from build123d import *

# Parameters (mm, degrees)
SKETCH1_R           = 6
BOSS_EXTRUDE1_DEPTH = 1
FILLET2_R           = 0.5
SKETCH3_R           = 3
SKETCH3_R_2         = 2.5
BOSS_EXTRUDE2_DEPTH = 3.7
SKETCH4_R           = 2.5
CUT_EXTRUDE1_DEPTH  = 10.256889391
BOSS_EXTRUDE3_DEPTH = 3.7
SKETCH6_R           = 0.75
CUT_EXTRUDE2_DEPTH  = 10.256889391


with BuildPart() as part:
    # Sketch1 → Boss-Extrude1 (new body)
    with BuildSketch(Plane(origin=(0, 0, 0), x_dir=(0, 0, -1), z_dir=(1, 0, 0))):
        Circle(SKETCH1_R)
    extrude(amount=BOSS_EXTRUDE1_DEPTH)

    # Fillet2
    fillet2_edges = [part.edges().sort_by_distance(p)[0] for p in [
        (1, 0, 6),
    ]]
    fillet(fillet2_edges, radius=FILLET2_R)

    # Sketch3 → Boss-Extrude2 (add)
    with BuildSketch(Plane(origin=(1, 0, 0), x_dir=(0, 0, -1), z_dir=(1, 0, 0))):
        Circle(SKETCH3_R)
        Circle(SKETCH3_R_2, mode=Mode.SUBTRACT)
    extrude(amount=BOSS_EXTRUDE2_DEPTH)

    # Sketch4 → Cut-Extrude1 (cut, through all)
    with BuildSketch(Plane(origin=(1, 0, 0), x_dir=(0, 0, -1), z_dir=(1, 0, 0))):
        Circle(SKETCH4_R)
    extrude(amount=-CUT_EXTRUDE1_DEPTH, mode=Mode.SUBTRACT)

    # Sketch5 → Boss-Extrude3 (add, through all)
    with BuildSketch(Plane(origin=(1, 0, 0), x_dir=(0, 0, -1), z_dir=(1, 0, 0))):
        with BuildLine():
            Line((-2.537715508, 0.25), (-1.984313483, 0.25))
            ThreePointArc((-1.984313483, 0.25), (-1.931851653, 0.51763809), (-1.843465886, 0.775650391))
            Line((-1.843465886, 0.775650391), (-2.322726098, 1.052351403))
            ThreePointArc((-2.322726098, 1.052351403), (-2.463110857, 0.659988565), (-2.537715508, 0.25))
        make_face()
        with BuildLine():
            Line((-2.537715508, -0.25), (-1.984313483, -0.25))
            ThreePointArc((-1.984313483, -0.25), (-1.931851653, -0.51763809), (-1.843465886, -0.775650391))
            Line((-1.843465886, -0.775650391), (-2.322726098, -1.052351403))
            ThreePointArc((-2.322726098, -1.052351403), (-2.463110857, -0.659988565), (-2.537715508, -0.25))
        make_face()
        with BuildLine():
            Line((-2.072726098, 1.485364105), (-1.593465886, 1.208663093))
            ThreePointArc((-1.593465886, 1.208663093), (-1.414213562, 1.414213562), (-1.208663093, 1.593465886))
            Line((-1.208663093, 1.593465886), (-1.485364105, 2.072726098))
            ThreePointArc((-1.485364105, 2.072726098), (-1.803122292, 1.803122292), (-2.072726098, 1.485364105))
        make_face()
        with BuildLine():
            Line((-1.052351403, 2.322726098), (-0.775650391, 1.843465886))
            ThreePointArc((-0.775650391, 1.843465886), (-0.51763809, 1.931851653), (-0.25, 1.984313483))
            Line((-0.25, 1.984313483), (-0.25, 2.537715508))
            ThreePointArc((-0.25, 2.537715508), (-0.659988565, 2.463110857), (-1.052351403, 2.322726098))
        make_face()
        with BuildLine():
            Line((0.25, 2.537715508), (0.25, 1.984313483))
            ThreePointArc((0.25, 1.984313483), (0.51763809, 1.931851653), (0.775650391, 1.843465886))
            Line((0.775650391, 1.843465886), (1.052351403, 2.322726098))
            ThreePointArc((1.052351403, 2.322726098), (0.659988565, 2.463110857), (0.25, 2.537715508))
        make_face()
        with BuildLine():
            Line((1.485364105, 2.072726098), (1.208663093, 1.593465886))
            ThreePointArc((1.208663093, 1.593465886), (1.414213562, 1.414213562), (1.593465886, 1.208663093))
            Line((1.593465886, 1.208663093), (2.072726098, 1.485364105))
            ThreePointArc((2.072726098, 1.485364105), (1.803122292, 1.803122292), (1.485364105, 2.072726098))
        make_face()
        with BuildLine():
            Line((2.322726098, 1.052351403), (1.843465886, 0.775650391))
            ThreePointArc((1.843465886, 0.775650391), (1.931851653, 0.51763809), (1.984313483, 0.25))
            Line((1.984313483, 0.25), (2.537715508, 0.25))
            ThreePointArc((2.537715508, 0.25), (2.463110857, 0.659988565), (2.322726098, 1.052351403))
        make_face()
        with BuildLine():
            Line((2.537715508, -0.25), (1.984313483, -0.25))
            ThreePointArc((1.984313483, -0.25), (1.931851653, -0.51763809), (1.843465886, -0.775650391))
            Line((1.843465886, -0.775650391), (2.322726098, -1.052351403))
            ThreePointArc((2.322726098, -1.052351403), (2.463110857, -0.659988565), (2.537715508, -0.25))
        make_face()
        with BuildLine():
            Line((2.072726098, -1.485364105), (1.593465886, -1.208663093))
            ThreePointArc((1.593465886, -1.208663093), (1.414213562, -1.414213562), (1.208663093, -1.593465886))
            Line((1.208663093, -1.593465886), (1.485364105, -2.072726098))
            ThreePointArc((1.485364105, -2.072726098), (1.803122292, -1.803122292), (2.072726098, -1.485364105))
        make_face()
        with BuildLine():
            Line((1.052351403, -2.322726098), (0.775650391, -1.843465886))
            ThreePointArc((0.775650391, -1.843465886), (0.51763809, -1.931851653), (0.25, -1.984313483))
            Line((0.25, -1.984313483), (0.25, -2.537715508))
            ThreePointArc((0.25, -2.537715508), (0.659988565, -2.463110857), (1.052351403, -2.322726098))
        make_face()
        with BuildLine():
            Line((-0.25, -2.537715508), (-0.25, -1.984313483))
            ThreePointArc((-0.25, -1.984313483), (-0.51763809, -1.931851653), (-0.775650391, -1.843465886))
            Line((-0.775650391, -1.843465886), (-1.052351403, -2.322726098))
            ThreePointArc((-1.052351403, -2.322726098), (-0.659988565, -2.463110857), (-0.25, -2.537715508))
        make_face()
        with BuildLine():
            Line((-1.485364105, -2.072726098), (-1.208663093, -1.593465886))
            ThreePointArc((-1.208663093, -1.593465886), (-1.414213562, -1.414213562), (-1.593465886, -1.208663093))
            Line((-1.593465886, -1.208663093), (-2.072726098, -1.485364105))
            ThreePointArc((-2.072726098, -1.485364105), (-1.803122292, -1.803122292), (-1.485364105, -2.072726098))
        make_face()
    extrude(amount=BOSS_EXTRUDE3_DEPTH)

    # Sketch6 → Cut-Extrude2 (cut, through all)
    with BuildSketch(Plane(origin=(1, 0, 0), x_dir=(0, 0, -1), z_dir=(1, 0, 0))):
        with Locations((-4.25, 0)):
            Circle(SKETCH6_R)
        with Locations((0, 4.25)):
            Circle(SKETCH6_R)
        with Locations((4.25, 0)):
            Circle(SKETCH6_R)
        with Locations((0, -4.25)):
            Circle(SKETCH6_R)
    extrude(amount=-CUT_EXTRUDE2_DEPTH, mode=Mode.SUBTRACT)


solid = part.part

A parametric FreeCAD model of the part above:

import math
import FreeCAD as App
import Part
import Sketcher

V = App.Vector
Q = App.Units.Quantity


def edges_at(feature, points):
    """Names of the edges that pass closest to the given points."""
    edges = feature.Shape.Edges
    near = lambda p: min(range(len(edges)), key=lambda i: edges[i].distToShape(Part.Vertex(*p))[0])
    return sorted({f"Edge{near(p) + 1}" for p in points})

doc = App.newDocument("Part")
params = doc.addObject("Spreadsheet::Sheet", "Params")
for row, (alias, value) in enumerate([
    ("sketch1_diameter", "12 mm"),
    ("pad1_length", "1 mm"),
    ("fillet_radius", "0.5 mm"),
    ("sketch2_diameter", "6 mm"),
    ("sketch2_diameter2", "5 mm"),
    ("pad2_length", "3.7 mm"),
    ("sketch3_diameter", "5 mm"),
    ("sketch4_radius", "2 mm"),
    ("sketch4_radius2", "2.55 mm"),
    ("pad3_length", "3.7 mm"),
    ("sketch5_diameter", "1.5 mm"),
], start=1):
    params.set(f"A{row}", alias)
    params.set(f"B{row}", "=" + value)
    params.setAlias(f"B{row}", alias)

body = doc.addObject("PartDesign::Body", "Body")

sketch1 = body.newObject("Sketcher::SketchObject", "Sketch")
sketch1.AttachmentSupport = (doc.getObject("YZ_Plane"), [""])
sketch1.MapMode = "FlatFace"
sketch1.addGeometry(Part.Circle(V(0, 0, 0), V(0, 0, 1), 6), False)
sketch1.addConstraint(Sketcher.Constraint("Coincident", 0, 3, -1, 1))
sketch1.addConstraint(Sketcher.Constraint("Diameter", 0, Q("12 mm")))
sketch1.setExpression("Constraints[1]", "Params.sketch1_diameter")
pad1 = body.newObject("PartDesign::Pad", "Pad")
pad1.Profile = sketch1
pad1.setExpression("Length", "Params.pad1_length")
doc.recompute()

fillet = body.newObject("PartDesign::Fillet", "Fillet")
fillet.Base = (pad1, edges_at(pad1, [(1, 0, 6)]))
fillet.setExpression("Radius", "Params.fillet_radius")

sketch2 = body.newObject("Sketcher::SketchObject", "Sketch001")
sketch2.AttachmentSupport = (doc.getObject("YZ_Plane"), [""])
sketch2.MapMode = "FlatFace"
sketch2.AttachmentOffset = App.Placement(V(0, 0, 1), App.Rotation())
sketch2.addGeometry(Part.Circle(V(0, 0, 0), V(0, 0, 1), 3), False)
sketch2.addGeometry(Part.Circle(V(0, 0, 0), V(0, 0, 1), 2.5), False)
sketch2.addConstraint(Sketcher.Constraint("Coincident", 0, 3, -1, 1))
sketch2.addConstraint(Sketcher.Constraint("Coincident", 1, 3, -1, 1))
sketch2.addConstraint(Sketcher.Constraint("Diameter", 0, Q("6 mm")))
sketch2.addConstraint(Sketcher.Constraint("Diameter", 1, Q("5 mm")))
sketch2.setExpression("Constraints[2]", "Params.sketch2_diameter")
sketch2.setExpression("Constraints[3]", "Params.sketch2_diameter2")
pad2 = body.newObject("PartDesign::Pad", "Pad001")
pad2.Profile = sketch2
pad2.setExpression("Length", "Params.pad2_length")

sketch3 = body.newObject("Sketcher::SketchObject", "Sketch002")
sketch3.AttachmentSupport = (doc.getObject("YZ_Plane"), [""])
sketch3.MapMode = "FlatFace"
sketch3.AttachmentOffset = App.Placement(V(0, 0, 1), App.Rotation())
sketch3.addGeometry(Part.Circle(V(0, 0, 0), V(0, 0, 1), 2.5), False)
sketch3.addConstraint(Sketcher.Constraint("Coincident", 0, 3, -1, 1))
sketch3.addConstraint(Sketcher.Constraint("Diameter", 0, Q("5 mm")))
sketch3.setExpression("Constraints[1]", "Params.sketch3_diameter")
pocket1 = body.newObject("PartDesign::Pocket", "Pocket")
pocket1.Profile = sketch3
pocket1.Type = "ThroughAll"

sketch4 = body.newObject("Sketcher::SketchObject", "Sketch003")
sketch4.AttachmentSupport = (doc.getObject("YZ_Plane"), [""])
sketch4.MapMode = "FlatFace"
sketch4.AttachmentOffset = App.Placement(V(0, 0, 1), App.Rotation())
sketch4.addGeometry(Part.LineSegment(V(0.25, 2.537716, 0), V(0.25, 1.984313, 0)), False)
sketch4.addGeometry(Part.ArcOfCircle(Part.Circle(V(0, 0, 0), V(0, 0, 1), 2), math.radians(67.180756), math.radians(82.819244)), False)
sketch4.addGeometry(Part.LineSegment(V(0.77565, 1.843466, 0), V(1.052351, 2.322726, 0)), False)
sketch4.addGeometry(Part.ArcOfCircle(Part.Circle(V(0, 0, 0), V(0, 0, 1), 2.55), math.radians(65.626271), math.radians(84.373729)), False)
sketch4.addGeometry(Part.LineSegment(V(-0.25, 1.984313, 0), V(-0.25, 2.537716, 0)), False)
sketch4.addGeometry(Part.ArcOfCircle(Part.Circle(V(0, 0, 0), V(0, 0, 1), 2.55), math.radians(95.626271), math.radians(114.373729)), False)
sketch4.addGeometry(Part.LineSegment(V(-1.052351, 2.322726, 0), V(-0.77565, 1.843466, 0)), False)
sketch4.addGeometry(Part.ArcOfCircle(Part.Circle(V(0, 0, 0), V(0, 0, 1), 2), math.radians(97.180756), math.radians(112.819244)), False)
sketch4.addGeometry(Part.LineSegment(V(1.485364, 2.072726, 0), V(1.208663, 1.593466, 0)), False)
sketch4.addGeometry(Part.ArcOfCircle(Part.Circle(V(0, 0, 0), V(0, 0, 1), 2), math.radians(37.180756), math.radians(52.819244)), False)
sketch4.addGeometry(Part.LineSegment(V(1.593466, 1.208663, 0), V(2.072726, 1.485364, 0)), False)
sketch4.addGeometry(Part.ArcOfCircle(Part.Circle(V(0, 0, 0), V(0, 0, 1), 2.55), math.radians(35.626271), math.radians(54.373729)), False)
sketch4.addGeometry(Part.LineSegment(V(2.322726, 1.052351, 0), V(1.843466, 0.77565, 0)), False)
sketch4.addGeometry(Part.ArcOfCircle(Part.Circle(V(0, 0, 0), V(0, 0, 1), 2), math.radians(7.180756), math.radians(22.819244)), False)
sketch4.addGeometry(Part.LineSegment(V(1.984313, 0.25, 0), V(2.537716, 0.25, 0)), False)
sketch4.addGeometry(Part.ArcOfCircle(Part.Circle(V(0, 0, 0), V(0, 0, 1), 2.55), math.radians(5.626271), math.radians(24.373729)), False)
sketch4.addGeometry(Part.LineSegment(V(2.537716, -0.25, 0), V(1.984313, -0.25, 0)), False)
sketch4.addGeometry(Part.ArcOfCircle(Part.Circle(V(0, 0, 0), V(0, 0, 1), 2), math.radians(-22.819244), math.radians(-7.180756)), False)
sketch4.addGeometry(Part.LineSegment(V(1.843466, -0.77565, 0), V(2.322726, -1.052351, 0)), False)
sketch4.addGeometry(Part.ArcOfCircle(Part.Circle(V(0, 0, 0), V(0, 0, 1), 2.55), math.radians(-24.373729), math.radians(-5.626271)), False)
sketch4.addGeometry(Part.LineSegment(V(2.072726, -1.485364, 0), V(1.593466, -1.208663, 0)), False)
sketch4.addGeometry(Part.ArcOfCircle(Part.Circle(V(0, 0, 0), V(0, 0, 1), 2), math.radians(-52.819244), math.radians(-37.180756)), False)
sketch4.addGeometry(Part.LineSegment(V(1.208663, -1.593466, 0), V(1.485364, -2.072726, 0)), False)
sketch4.addGeometry(Part.ArcOfCircle(Part.Circle(V(0, 0, 0), V(0, 0, 1), 2.55), math.radians(-54.373729), math.radians(-35.626271)), False)
sketch4.addGeometry(Part.LineSegment(V(1.052351, -2.322726, 0), V(0.77565, -1.843466, 0)), False)
sketch4.addGeometry(Part.ArcOfCircle(Part.Circle(V(0, 0, 0), V(0, 0, 1), 2), math.radians(-82.819244), math.radians(-67.180756)), False)
sketch4.addGeometry(Part.LineSegment(V(0.25, -1.984313, 0), V(0.25, -2.537716, 0)), False)
sketch4.addGeometry(Part.ArcOfCircle(Part.Circle(V(0, 0, 0), V(0, 0, 1), 2.55), math.radians(-84.373729), math.radians(-65.626271)), False)
sketch4.addGeometry(Part.LineSegment(V(-0.25, -2.537716, 0), V(-0.25, -1.984313, 0)), False)
sketch4.addGeometry(Part.ArcOfCircle(Part.Circle(V(0, 0, 0), V(0, 0, 1), 2), math.radians(-112.819244), math.radians(-97.180756)), False)
sketch4.addGeometry(Part.LineSegment(V(-0.77565, -1.843466, 0), V(-1.052351, -2.322726, 0)), False)
sketch4.addGeometry(Part.ArcOfCircle(Part.Circle(V(0, 0, 0), V(0, 0, 1), 2.55), math.radians(-114.373729), math.radians(-95.626271)), False)
sketch4.addGeometry(Part.LineSegment(V(-1.485364, -2.072726, 0), V(-1.208663, -1.593466, 0)), False)
sketch4.addGeometry(Part.ArcOfCircle(Part.Circle(V(0, 0, 0), V(0, 0, 1), 2), math.radians(-142.819244), math.radians(-127.180756)), False)
sketch4.addGeometry(Part.LineSegment(V(-1.593466, -1.208663, 0), V(-2.072726, -1.485364, 0)), False)
sketch4.addGeometry(Part.ArcOfCircle(Part.Circle(V(0, 0, 0), V(0, 0, 1), 2.55), math.radians(-144.373729), math.radians(-125.626271)), False)
sketch4.addGeometry(Part.LineSegment(V(-2.322726, -1.052351, 0), V(-1.843466, -0.77565, 0)), False)
sketch4.addGeometry(Part.ArcOfCircle(Part.Circle(V(0, 0, 0), V(0, 0, 1), 2), math.radians(-172.819244), math.radians(-157.180756)), False)
sketch4.addGeometry(Part.LineSegment(V(-1.984313, -0.25, 0), V(-2.537716, -0.25, 0)), False)
sketch4.addGeometry(Part.ArcOfCircle(Part.Circle(V(0, 0, 0), V(0, 0, 1), 2.55), math.radians(-174.373729), math.radians(-155.626271)), False)
sketch4.addGeometry(Part.LineSegment(V(-2.537716, 0.25, 0), V(-1.984313, 0.25, 0)), False)
sketch4.addGeometry(Part.ArcOfCircle(Part.Circle(V(0, 0, 0), V(0, 0, 1), 2), math.radians(157.180756), math.radians(172.819244)), False)
sketch4.addGeometry(Part.LineSegment(V(-1.843466, 0.77565, 0), V(-2.322726, 1.052351, 0)), False)
sketch4.addGeometry(Part.ArcOfCircle(Part.Circle(V(0, 0, 0), V(0, 0, 1), 2.55), math.radians(155.626271), math.radians(174.373729)), False)
sketch4.addGeometry(Part.LineSegment(V(-2.072726, 1.485364, 0), V(-1.593466, 1.208663, 0)), False)
sketch4.addGeometry(Part.ArcOfCircle(Part.Circle(V(0, 0, 0), V(0, 0, 1), 2), math.radians(127.180756), math.radians(142.819244)), False)
sketch4.addGeometry(Part.LineSegment(V(-1.208663, 1.593466, 0), V(-1.485364, 2.072726, 0)), False)
sketch4.addGeometry(Part.ArcOfCircle(Part.Circle(V(0, 0, 0), V(0, 0, 1), 2.55), math.radians(125.626271), math.radians(144.373729)), False)
sketch4.addConstraint(Sketcher.Constraint("Coincident", 0, 2, 1, 2))
sketch4.addConstraint(Sketcher.Constraint("Coincident", 1, 1, 2, 1))
sketch4.addConstraint(Sketcher.Constraint("Coincident", 2, 2, 3, 1))
sketch4.addConstraint(Sketcher.Constraint("Coincident", 3, 2, 0, 1))
sketch4.addConstraint(Sketcher.Constraint("Coincident", 4, 2, 5, 1))
sketch4.addConstraint(Sketcher.Constraint("Coincident", 5, 2, 6, 1))
sketch4.addConstraint(Sketcher.Constraint("Coincident", 6, 2, 7, 2))
sketch4.addConstraint(Sketcher.Constraint("Coincident", 7, 1, 4, 1))
sketch4.addConstraint(Sketcher.Constraint("Coincident", 8, 2, 9, 2))
sketch4.addConstraint(Sketcher.Constraint("Coincident", 9, 1, 10, 1))
sketch4.addConstraint(Sketcher.Constraint("Coincident", 10, 2, 11, 1))
sketch4.addConstraint(Sketcher.Constraint("Coincident", 11, 2, 8, 1))
sketch4.addConstraint(Sketcher.Constraint("Coincident", 12, 2, 13, 2))
sketch4.addConstraint(Sketcher.Constraint("Coincident", 13, 1, 14, 1))
sketch4.addConstraint(Sketcher.Constraint("Coincident", 14, 2, 15, 1))
sketch4.addConstraint(Sketcher.Constraint("Coincident", 15, 2, 12, 1))
sketch4.addConstraint(Sketcher.Constraint("Coincident", 16, 2, 17, 2))
sketch4.addConstraint(Sketcher.Constraint("Coincident", 17, 1, 18, 1))
sketch4.addConstraint(Sketcher.Constraint("Coincident", 18, 2, 19, 1))
sketch4.addConstraint(Sketcher.Constraint("Coincident", 19, 2, 16, 1))
sketch4.addConstraint(Sketcher.Constraint("Coincident", 20, 2, 21, 2))
sketch4.addConstraint(Sketcher.Constraint("Coincident", 21, 1, 22, 1))
sketch4.addConstraint(Sketcher.Constraint("Coincident", 22, 2, 23, 1))
sketch4.addConstraint(Sketcher.Constraint("Coincident", 23, 2, 20, 1))
sketch4.addConstraint(Sketcher.Constraint("Coincident", 24, 2, 25, 2))
sketch4.addConstraint(Sketcher.Constraint("Coincident", 25, 1, 26, 1))
sketch4.addConstraint(Sketcher.Constraint("Coincident", 26, 2, 27, 1))
sketch4.addConstraint(Sketcher.Constraint("Coincident", 27, 2, 24, 1))
sketch4.addConstraint(Sketcher.Constraint("Coincident", 28, 2, 29, 2))
sketch4.addConstraint(Sketcher.Constraint("Coincident", 29, 1, 30, 1))
sketch4.addConstraint(Sketcher.Constraint("Coincident", 30, 2, 31, 1))
sketch4.addConstraint(Sketcher.Constraint("Coincident", 31, 2, 28, 1))
sketch4.addConstraint(Sketcher.Constraint("Coincident", 32, 2, 33, 2))
sketch4.addConstraint(Sketcher.Constraint("Coincident", 33, 1, 34, 1))
sketch4.addConstraint(Sketcher.Constraint("Coincident", 34, 2, 35, 1))
sketch4.addConstraint(Sketcher.Constraint("Coincident", 35, 2, 32, 1))
sketch4.addConstraint(Sketcher.Constraint("Coincident", 36, 2, 37, 2))
sketch4.addConstraint(Sketcher.Constraint("Coincident", 37, 1, 38, 1))
sketch4.addConstraint(Sketcher.Constraint("Coincident", 38, 2, 39, 1))
sketch4.addConstraint(Sketcher.Constraint("Coincident", 39, 2, 36, 1))
sketch4.addConstraint(Sketcher.Constraint("Coincident", 40, 2, 41, 2))
sketch4.addConstraint(Sketcher.Constraint("Coincident", 41, 1, 42, 1))
sketch4.addConstraint(Sketcher.Constraint("Coincident", 42, 2, 43, 1))
sketch4.addConstraint(Sketcher.Constraint("Coincident", 43, 2, 40, 1))
sketch4.addConstraint(Sketcher.Constraint("Coincident", 44, 2, 45, 2))
sketch4.addConstraint(Sketcher.Constraint("Coincident", 45, 1, 46, 1))
sketch4.addConstraint(Sketcher.Constraint("Coincident", 46, 2, 47, 1))
sketch4.addConstraint(Sketcher.Constraint("Coincident", 47, 2, 44, 1))
sketch4.addConstraint(Sketcher.Constraint("Vertical", 0))
sketch4.addConstraint(Sketcher.Constraint("Vertical", 4))
sketch4.addConstraint(Sketcher.Constraint("Horizontal", 14))
sketch4.addConstraint(Sketcher.Constraint("Horizontal", 16))
sketch4.addConstraint(Sketcher.Constraint("Vertical", 26))
sketch4.addConstraint(Sketcher.Constraint("Vertical", 28))
sketch4.addConstraint(Sketcher.Constraint("Horizontal", 38))
sketch4.addConstraint(Sketcher.Constraint("Horizontal", 40))
sketch4.addConstraint(Sketcher.Constraint("Coincident", 1, 3, -1, 1))
sketch4.addConstraint(Sketcher.Constraint("Coincident", 3, 3, -1, 1))
sketch4.addConstraint(Sketcher.Constraint("Coincident", 5, 3, -1, 1))
sketch4.addConstraint(Sketcher.Constraint("Coincident", 7, 3, -1, 1))
sketch4.addConstraint(Sketcher.Constraint("Coincident", 9, 3, -1, 1))
sketch4.addConstraint(Sketcher.Constraint("Coincident", 11, 3, -1, 1))
sketch4.addConstraint(Sketcher.Constraint("Coincident", 13, 3, -1, 1))
sketch4.addConstraint(Sketcher.Constraint("Coincident", 15, 3, -1, 1))
sketch4.addConstraint(Sketcher.Constraint("Coincident", 17, 3, -1, 1))
sketch4.addConstraint(Sketcher.Constraint("Coincident", 19, 3, -1, 1))
sketch4.addConstraint(Sketcher.Constraint("Coincident", 21, 3, -1, 1))
sketch4.addConstraint(Sketcher.Constraint("Coincident", 23, 3, -1, 1))
sketch4.addConstraint(Sketcher.Constraint("Coincident", 25, 3, -1, 1))
sketch4.addConstraint(Sketcher.Constraint("Coincident", 27, 3, -1, 1))
sketch4.addConstraint(Sketcher.Constraint("Coincident", 29, 3, -1, 1))
sketch4.addConstraint(Sketcher.Constraint("Coincident", 31, 3, -1, 1))
sketch4.addConstraint(Sketcher.Constraint("Coincident", 33, 3, -1, 1))
sketch4.addConstraint(Sketcher.Constraint("Coincident", 35, 3, -1, 1))
sketch4.addConstraint(Sketcher.Constraint("Coincident", 37, 3, -1, 1))
sketch4.addConstraint(Sketcher.Constraint("Coincident", 39, 3, -1, 1))
sketch4.addConstraint(Sketcher.Constraint("Coincident", 41, 3, -1, 1))
sketch4.addConstraint(Sketcher.Constraint("Coincident", 43, 3, -1, 1))
sketch4.addConstraint(Sketcher.Constraint("Coincident", 45, 3, -1, 1))
sketch4.addConstraint(Sketcher.Constraint("Coincident", 47, 3, -1, 1))
sketch4.addConstraint(Sketcher.Constraint("Equal", 3, 5))
sketch4.addConstraint(Sketcher.Constraint("Equal", 1, 7))
sketch4.addConstraint(Sketcher.Constraint("Equal", 7, 9))
sketch4.addConstraint(Sketcher.Constraint("Equal", 5, 11))
sketch4.addConstraint(Sketcher.Constraint("Equal", 9, 13))
sketch4.addConstraint(Sketcher.Constraint("Equal", 11, 15))
sketch4.addConstraint(Sketcher.Constraint("Equal", 13, 17))
sketch4.addConstraint(Sketcher.Constraint("Equal", 15, 19))
sketch4.addConstraint(Sketcher.Constraint("Equal", 17, 21))
sketch4.addConstraint(Sketcher.Constraint("Equal", 19, 23))
sketch4.addConstraint(Sketcher.Constraint("Equal", 21, 25))
sketch4.addConstraint(Sketcher.Constraint("Equal", 23, 27))
sketch4.addConstraint(Sketcher.Constraint("Equal", 25, 29))
sketch4.addConstraint(Sketcher.Constraint("Equal", 27, 31))
sketch4.addConstraint(Sketcher.Constraint("Equal", 29, 33))
sketch4.addConstraint(Sketcher.Constraint("Equal", 31, 35))
sketch4.addConstraint(Sketcher.Constraint("Equal", 33, 37))
sketch4.addConstraint(Sketcher.Constraint("Equal", 35, 39))
sketch4.addConstraint(Sketcher.Constraint("Equal", 37, 41))
sketch4.addConstraint(Sketcher.Constraint("Equal", 39, 43))
sketch4.addConstraint(Sketcher.Constraint("Equal", 41, 45))
sketch4.addConstraint(Sketcher.Constraint("Equal", 43, 47))
sketch4.addConstraint(Sketcher.Constraint("Parallel", 2, 8))
sketch4.addConstraint(Sketcher.Constraint("Perpendicular", 6, 10))
sketch4.addConstraint(Sketcher.Constraint("Parallel", 10, 12))
sketch4.addConstraint(Sketcher.Constraint("Perpendicular", 8, 18))
sketch4.addConstraint(Sketcher.Constraint("Parallel", 18, 20))
sketch4.addConstraint(Sketcher.Constraint("Perpendicular", 12, 22))
sketch4.addConstraint(Sketcher.Constraint("Parallel", 22, 24))
sketch4.addConstraint(Sketcher.Constraint("Perpendicular", 20, 30))
sketch4.addConstraint(Sketcher.Constraint("Parallel", 30, 32))
sketch4.addConstraint(Sketcher.Constraint("Perpendicular", 24, 34))
sketch4.addConstraint(Sketcher.Constraint("Parallel", 34, 36))
sketch4.addConstraint(Sketcher.Constraint("Perpendicular", 32, 42))
sketch4.addConstraint(Sketcher.Constraint("Parallel", 42, 44))
sketch4.addConstraint(Sketcher.Constraint("Perpendicular", 36, 46))
sketch4.addConstraint(Sketcher.Constraint("Horizontal", 3, 2, 4, 2))
sketch4.addConstraint(Sketcher.Constraint("Horizontal", 2, 2, 5, 2))
sketch4.addConstraint(Sketcher.Constraint("Horizontal", 1, 1, 6, 2))
sketch4.addConstraint(Sketcher.Constraint("Horizontal", 25, 1, 28, 2))
sketch4.addConstraint(Sketcher.Constraint("Horizontal", 24, 2, 29, 1))
sketch4.addConstraint(Sketcher.Constraint("Horizontal", 21, 1, 32, 2))
sketch4.addConstraint(Sketcher.Constraint("Horizontal", 20, 2, 33, 1))
sketch4.addConstraint(Sketcher.Constraint("Horizontal", 17, 1, 36, 2))
sketch4.addConstraint(Sketcher.Constraint("Horizontal", 19, 2, 37, 1))
sketch4.addConstraint(Sketcher.Constraint("Horizontal", 14, 2, 40, 2))
sketch4.addConstraint(Sketcher.Constraint("Horizontal", 12, 2, 41, 1))
sketch4.addConstraint(Sketcher.Constraint("Horizontal", 9, 1, 44, 2))
sketch4.addConstraint(Sketcher.Constraint("Horizontal", 8, 2, 45, 1))
sketch4.addConstraint(Sketcher.Constraint("Vertical", 13, 1, 16, 2))
sketch4.addConstraint(Sketcher.Constraint("Vertical", 12, 2, 17, 1))
sketch4.addConstraint(Sketcher.Constraint("Vertical", 9, 1, 20, 2))
sketch4.addConstraint(Sketcher.Constraint("Vertical", 8, 2, 21, 1))
sketch4.addConstraint(Sketcher.Constraint("Vertical", 1, 1, 24, 2))
sketch4.addConstraint(Sketcher.Constraint("Vertical", 3, 2, 25, 1))
sketch4.addConstraint(Sketcher.Constraint("Equal", 40, 0))
sketch4.addConstraint(Sketcher.Constraint("Equal", 6, 8))
sketch4.addConstraint(Sketcher.Constraint("Equal", 8, 10))
sketch4.addConstraint(Sketcher.Constraint("Equal", 10, 12))
sketch4.addConstraint(Sketcher.Constraint("Radius", 1, Q("2 mm")))
sketch4.addConstraint(Sketcher.Constraint("Angle", 2, Q("60 deg")))
sketch4.addConstraint(Sketcher.Constraint("Radius", 3, Q("2.55 mm")))
sketch4.addConstraint(Sketcher.Constraint("DistanceX", -1, 1, 0, 2, Q("0.25 mm")))
sketch4.addConstraint(Sketcher.Constraint("DistanceX", -1, 1, 1, 1, Q("0.77565 mm")))
sketch4.setExpression("Constraints[139]", "Params.sketch4_radius")
sketch4.setExpression("Constraints[141]", "Params.sketch4_radius2")
pad3 = body.newObject("PartDesign::Pad", "Pad002")
pad3.Profile = sketch4
pad3.setExpression("Length", "Params.pad3_length")

sketch5 = body.newObject("Sketcher::SketchObject", "Sketch004")
sketch5.AttachmentSupport = (doc.getObject("YZ_Plane"), [""])
sketch5.MapMode = "FlatFace"
sketch5.AttachmentOffset = App.Placement(V(0, 0, 1), App.Rotation())
sketch5.addGeometry(Part.Circle(V(0, 4.25, 0), V(0, 0, 1), 0.75), False)
sketch5.addGeometry(Part.Circle(V(4.25, 0, 0), V(0, 0, 1), 0.75), False)
sketch5.addGeometry(Part.Circle(V(0, -4.25, 0), V(0, 0, 1), 0.75), False)
sketch5.addGeometry(Part.Circle(V(-4.25, 0, 0), V(0, 0, 1), 0.75), False)
sketch5.addConstraint(Sketcher.Constraint("Equal", 0, 1))
sketch5.addConstraint(Sketcher.Constraint("Equal", 1, 2))
sketch5.addConstraint(Sketcher.Constraint("Equal", 2, 3))
sketch5.addConstraint(Sketcher.Constraint("Symmetric", 0, 3, 2, 3, -1, 1))
sketch5.addConstraint(Sketcher.Constraint("Symmetric", 1, 3, 3, 3, -1, 1))
sketch5.addConstraint(Sketcher.Constraint("PointOnObject", 0, 3, -2))
sketch5.addConstraint(Sketcher.Constraint("PointOnObject", 1, 3, -1))
sketch5.addConstraint(Sketcher.Constraint("Diameter", 0, Q("1.5 mm")))
sketch5.addConstraint(Sketcher.Constraint("DistanceY", 2, 3, 0, 3, Q("8.5 mm")))
sketch5.addConstraint(Sketcher.Constraint("DistanceX", 3, 3, 1, 3, Q("8.5 mm")))
sketch5.setExpression("Constraints[7]", "Params.sketch5_diameter")
pocket2 = body.newObject("PartDesign::Pocket", "Pocket001")
pocket2.Profile = sketch5
pocket2.Type = "ThroughAll"

doc.recompute()
